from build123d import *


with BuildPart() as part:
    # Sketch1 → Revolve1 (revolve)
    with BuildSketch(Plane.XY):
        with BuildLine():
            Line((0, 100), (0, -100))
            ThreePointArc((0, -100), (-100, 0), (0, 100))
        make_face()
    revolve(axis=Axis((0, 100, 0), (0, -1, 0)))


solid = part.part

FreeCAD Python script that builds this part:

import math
import FreeCAD as App
import Part
import Sketcher

V = App.Vector

doc = App.newDocument("Part")
body = doc.addObject("PartDesign::Body", "Body")

sketch1 = body.newObject("Sketcher::SketchObject", "Sketch")
sketch1.AttachmentSupport = (doc.getObject("XY_Plane"), [""])
sketch1.MapMode = "FlatFace"
sketch1.addGeometry([
    Part.LineSegment(V(0, -100, 0), V(0, 100, 0)),
    Part.ArcOfCircle(Part.Circle(V(0, 0, 0), V(0, 0, 1), 100), math.radians(90), math.radians(270)),
], False)
sketch1.addConstraint([
    Sketcher.Constraint("Coincident", 0, 1, 1, 2),
    Sketcher.Constraint("Coincident", 1, 1, 0, 2),
    Sketcher.Constraint("Vertical", 0),
    Sketcher.Constraint("Coincident", 1, 3, -1, 1),
    Sketcher.Constraint("PointOnObject", 0, 1, -2),
    Sketcher.Constraint("Radius", 1, 100.0),
])
revolution = body.newObject("PartDesign::Revolution", "Revolution")
revolution.Profile = sketch1
revolution.ReferenceAxis = (sketch1, ["V_Axis"])
revolution.Angle = 360

doc.recompute()
